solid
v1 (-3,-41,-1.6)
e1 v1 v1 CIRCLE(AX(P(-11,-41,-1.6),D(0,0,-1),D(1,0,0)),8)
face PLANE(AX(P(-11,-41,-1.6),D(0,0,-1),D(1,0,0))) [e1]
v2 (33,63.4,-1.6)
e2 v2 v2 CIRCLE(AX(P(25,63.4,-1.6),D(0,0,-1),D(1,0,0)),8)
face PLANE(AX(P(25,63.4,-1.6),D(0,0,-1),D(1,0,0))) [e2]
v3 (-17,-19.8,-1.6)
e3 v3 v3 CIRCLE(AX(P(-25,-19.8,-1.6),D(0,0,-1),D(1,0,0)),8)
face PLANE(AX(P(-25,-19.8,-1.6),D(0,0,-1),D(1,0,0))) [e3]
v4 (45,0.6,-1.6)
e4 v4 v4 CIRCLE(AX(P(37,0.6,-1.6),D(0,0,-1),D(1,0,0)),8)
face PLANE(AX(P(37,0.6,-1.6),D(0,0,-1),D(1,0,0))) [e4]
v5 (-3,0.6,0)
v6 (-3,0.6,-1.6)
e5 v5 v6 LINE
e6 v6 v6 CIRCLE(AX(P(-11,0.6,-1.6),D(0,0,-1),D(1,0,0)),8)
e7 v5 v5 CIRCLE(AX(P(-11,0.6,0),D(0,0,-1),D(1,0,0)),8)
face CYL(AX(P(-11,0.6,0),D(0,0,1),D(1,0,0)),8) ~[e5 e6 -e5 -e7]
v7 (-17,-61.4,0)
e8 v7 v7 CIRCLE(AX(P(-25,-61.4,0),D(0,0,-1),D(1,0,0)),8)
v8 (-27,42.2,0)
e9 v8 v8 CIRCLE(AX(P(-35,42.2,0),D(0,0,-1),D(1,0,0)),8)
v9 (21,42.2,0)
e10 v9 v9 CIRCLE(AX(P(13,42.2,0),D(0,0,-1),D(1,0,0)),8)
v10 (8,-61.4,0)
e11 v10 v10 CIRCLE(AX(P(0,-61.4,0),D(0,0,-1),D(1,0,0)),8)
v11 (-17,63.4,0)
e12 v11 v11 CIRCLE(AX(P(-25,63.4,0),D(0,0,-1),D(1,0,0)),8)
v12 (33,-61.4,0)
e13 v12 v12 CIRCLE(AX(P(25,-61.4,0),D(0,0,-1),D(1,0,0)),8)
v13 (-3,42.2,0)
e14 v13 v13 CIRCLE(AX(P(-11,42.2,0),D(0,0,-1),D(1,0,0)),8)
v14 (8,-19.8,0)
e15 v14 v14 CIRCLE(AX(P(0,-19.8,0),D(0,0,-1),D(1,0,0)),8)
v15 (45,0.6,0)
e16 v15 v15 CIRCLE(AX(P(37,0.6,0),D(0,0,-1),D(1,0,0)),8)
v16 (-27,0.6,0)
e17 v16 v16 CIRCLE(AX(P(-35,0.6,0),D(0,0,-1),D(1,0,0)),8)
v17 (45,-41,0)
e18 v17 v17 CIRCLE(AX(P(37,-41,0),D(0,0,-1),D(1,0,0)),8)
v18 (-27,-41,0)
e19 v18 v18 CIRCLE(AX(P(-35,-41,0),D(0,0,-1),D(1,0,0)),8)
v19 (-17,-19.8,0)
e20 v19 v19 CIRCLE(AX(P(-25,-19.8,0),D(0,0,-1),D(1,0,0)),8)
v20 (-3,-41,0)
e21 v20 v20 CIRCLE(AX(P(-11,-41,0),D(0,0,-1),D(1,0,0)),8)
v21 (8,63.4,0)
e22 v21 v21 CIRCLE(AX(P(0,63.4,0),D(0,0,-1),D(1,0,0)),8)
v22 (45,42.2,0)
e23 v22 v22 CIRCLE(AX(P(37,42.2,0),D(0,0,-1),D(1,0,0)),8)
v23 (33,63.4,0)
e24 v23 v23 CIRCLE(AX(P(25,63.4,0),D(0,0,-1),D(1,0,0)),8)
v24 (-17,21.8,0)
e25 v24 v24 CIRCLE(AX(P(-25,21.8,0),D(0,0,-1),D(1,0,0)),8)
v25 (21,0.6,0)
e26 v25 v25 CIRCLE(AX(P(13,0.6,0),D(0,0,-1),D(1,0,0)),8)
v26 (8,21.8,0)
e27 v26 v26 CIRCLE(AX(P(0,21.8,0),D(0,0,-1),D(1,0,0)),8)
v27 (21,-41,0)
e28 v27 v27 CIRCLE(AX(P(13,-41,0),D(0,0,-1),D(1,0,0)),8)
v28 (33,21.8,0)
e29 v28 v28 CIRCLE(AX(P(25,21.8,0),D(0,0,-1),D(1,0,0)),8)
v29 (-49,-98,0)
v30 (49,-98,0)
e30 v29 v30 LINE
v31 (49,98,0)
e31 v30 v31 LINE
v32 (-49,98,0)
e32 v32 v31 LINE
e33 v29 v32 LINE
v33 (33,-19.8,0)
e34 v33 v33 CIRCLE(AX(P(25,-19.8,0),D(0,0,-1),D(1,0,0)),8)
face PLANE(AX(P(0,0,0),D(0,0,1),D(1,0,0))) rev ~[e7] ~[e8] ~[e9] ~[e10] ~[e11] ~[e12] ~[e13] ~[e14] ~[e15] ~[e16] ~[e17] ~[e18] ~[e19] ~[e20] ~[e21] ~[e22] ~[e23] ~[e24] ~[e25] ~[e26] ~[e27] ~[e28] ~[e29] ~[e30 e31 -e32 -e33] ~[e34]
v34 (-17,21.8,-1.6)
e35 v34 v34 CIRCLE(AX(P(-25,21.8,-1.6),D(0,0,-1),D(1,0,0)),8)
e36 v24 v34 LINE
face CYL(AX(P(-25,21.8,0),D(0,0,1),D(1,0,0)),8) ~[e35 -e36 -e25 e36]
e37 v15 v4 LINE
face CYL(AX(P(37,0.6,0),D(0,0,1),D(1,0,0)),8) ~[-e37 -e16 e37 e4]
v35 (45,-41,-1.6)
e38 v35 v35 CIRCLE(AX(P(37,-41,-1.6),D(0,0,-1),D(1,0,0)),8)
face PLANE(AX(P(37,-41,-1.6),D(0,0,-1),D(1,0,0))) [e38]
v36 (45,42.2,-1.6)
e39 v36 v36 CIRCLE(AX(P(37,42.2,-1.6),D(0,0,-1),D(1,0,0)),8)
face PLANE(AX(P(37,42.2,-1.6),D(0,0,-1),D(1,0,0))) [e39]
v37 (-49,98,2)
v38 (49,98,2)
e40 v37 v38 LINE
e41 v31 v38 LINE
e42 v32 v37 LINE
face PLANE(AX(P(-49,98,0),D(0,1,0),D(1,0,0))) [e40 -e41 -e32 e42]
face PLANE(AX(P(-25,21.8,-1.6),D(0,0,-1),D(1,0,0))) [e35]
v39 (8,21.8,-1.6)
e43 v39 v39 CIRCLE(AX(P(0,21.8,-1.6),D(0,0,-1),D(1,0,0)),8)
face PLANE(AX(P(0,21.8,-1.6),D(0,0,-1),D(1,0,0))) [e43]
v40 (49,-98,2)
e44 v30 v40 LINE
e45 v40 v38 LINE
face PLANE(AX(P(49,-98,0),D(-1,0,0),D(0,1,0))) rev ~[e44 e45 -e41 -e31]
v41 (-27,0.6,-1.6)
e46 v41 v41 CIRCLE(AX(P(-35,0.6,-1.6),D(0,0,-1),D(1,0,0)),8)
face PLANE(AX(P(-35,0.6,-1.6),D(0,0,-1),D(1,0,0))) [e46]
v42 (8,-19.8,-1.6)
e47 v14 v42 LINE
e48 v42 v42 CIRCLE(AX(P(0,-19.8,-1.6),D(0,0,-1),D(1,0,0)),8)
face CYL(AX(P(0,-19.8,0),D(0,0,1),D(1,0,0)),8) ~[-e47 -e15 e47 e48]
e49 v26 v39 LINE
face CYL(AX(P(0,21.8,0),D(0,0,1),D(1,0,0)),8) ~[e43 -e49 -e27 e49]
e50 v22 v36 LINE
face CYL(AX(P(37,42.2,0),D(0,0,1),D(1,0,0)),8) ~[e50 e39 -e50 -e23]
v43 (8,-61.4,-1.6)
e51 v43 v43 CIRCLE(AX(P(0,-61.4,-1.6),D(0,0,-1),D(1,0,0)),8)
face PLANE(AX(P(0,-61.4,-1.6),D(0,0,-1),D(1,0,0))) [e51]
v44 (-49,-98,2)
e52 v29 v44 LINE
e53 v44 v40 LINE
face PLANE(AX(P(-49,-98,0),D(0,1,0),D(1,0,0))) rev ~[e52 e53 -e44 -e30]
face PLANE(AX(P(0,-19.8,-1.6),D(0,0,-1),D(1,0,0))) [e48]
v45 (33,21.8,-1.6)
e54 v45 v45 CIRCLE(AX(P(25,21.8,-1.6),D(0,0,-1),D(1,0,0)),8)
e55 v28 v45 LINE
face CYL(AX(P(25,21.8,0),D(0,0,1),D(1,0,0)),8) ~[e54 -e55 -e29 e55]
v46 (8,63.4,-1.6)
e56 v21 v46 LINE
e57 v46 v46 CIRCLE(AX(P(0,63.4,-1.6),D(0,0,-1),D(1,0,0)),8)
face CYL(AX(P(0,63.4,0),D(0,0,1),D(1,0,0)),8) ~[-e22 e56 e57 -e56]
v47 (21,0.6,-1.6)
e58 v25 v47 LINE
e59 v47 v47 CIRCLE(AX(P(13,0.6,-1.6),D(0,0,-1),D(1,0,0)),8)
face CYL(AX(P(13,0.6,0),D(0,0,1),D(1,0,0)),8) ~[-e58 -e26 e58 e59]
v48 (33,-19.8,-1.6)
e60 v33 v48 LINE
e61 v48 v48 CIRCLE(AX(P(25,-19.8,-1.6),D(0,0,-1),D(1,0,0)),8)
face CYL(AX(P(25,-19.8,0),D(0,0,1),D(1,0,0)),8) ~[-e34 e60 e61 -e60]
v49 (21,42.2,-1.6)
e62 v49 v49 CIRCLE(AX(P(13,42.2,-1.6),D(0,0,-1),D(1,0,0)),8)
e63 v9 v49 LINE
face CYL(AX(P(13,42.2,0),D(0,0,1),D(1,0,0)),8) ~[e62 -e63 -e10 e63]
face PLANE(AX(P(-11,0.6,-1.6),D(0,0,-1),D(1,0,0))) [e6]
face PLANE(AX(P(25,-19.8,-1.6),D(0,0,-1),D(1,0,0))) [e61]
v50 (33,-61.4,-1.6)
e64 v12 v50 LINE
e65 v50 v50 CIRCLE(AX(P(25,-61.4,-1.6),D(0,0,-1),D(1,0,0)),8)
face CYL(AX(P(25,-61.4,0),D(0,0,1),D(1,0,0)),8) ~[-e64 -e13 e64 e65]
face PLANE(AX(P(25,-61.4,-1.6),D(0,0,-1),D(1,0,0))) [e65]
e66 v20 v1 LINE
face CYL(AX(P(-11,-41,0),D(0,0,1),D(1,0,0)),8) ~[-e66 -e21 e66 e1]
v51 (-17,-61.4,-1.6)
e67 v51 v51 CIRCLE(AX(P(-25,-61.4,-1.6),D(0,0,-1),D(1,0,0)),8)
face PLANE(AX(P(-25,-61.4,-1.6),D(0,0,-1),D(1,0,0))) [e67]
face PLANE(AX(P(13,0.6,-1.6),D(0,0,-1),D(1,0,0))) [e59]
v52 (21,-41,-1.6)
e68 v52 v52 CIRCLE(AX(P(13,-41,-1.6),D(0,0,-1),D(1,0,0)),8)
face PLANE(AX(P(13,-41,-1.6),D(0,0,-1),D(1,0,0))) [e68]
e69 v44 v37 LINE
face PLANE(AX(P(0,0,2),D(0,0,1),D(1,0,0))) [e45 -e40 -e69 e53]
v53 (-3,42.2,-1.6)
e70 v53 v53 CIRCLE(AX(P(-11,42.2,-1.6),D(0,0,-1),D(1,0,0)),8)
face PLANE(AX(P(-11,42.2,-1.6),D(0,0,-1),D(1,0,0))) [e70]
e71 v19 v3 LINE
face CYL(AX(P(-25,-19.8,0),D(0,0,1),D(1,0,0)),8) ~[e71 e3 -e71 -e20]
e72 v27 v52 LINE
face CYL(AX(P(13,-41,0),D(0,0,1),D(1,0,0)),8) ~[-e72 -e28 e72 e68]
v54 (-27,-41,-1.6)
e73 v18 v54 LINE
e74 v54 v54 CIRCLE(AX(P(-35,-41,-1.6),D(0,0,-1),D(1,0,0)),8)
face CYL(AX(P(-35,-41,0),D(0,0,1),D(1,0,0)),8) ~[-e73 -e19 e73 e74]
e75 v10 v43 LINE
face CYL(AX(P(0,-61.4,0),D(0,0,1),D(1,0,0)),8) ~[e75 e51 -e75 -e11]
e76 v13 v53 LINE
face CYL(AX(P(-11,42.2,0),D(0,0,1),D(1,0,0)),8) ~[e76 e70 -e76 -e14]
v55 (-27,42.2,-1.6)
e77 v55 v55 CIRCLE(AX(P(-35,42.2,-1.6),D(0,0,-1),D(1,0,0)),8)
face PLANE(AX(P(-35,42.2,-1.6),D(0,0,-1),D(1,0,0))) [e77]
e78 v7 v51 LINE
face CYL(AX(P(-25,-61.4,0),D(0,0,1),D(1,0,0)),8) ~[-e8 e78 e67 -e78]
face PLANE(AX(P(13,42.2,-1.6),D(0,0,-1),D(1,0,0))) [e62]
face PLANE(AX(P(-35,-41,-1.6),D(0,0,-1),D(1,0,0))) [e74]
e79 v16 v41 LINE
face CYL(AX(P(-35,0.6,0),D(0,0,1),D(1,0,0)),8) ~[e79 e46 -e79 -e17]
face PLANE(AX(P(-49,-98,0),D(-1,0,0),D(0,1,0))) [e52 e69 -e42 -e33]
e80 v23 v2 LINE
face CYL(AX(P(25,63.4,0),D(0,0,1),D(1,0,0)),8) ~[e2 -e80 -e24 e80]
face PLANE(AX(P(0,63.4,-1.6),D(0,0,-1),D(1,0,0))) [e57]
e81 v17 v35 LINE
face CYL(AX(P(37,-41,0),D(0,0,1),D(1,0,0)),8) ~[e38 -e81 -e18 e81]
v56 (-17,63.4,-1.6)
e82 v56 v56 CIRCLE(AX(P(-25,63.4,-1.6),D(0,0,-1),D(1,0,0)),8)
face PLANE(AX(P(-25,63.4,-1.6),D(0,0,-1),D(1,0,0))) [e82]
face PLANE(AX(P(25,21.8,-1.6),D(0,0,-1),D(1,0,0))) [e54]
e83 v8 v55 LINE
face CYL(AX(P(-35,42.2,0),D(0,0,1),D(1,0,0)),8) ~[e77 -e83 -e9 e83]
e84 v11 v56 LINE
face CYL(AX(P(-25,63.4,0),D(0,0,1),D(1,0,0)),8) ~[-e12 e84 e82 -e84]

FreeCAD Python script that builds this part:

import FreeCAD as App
import Part
import Sketcher

doc = App.newDocument("Part")
body = doc.addObject("PartDesign::Body", "Body")

sketch1 = body.newObject("Sketcher::SketchObject", "Sketch")
sketch1.AttachmentSupport = (doc.getObject("XY_Plane"), [""])
sketch1.MapMode = "FlatFace"
sketch1.addGeometry([
    Part.LineSegment(App.Vector(-49, 98, 0), App.Vector(-49, -98, 0)),
    Part.LineSegment(App.Vector(-49, -98, 0), App.Vector(49, -98, 0)),
    Part.LineSegment(App.Vector(49, -98, 0), App.Vector(49, 98, 0)),
    Part.LineSegment(App.Vector(49, 98, 0), App.Vector(-49, 98, 0)),
], False)
sketch1.addConstraint([
    Sketcher.Constraint("Coincident", 0, 2, 1, 1),
    Sketcher.Constraint("Coincident", 1, 2, 2, 1),
    Sketcher.Constraint("Coincident", 2, 2, 3, 1),
    Sketcher.Constraint("Coincident", 3, 2, 0, 1),
    Sketcher.Constraint("Vertical", 0),
    Sketcher.Constraint("Horizontal", 1),
    Sketcher.Constraint("Vertical", 2),
    Sketcher.Constraint("Horizontal", 3),
    Sketcher.Constraint("Symmetric", 0, 2, 2, 2, -1, 1),
    Sketcher.Constraint("DistanceX", 1, 1, 1, 2, 98.0),
    Sketcher.Constraint("DistanceY", 0, 2, 0, 1, 196.0),
])
pad1 = body.newObject("PartDesign::Pad", "Pad")
pad1.Profile = sketch1
pad1.Length = 2

sketch2 = body.newObject("Sketcher::SketchObject", "Sketch001")
sketch2.AttachmentSupport = (doc.getObject("XY_Plane"), [""])
sketch2.MapMode = "FlatFace"
sketch2.addGeometry([
    Part.Circle(App.Vector(37, 42.2, 0), App.Vector(0, 0, 1), 8),
    Part.Circle(App.Vector(37, 0.6, 0), App.Vector(0, 0, 1), 8),
    Part.Circle(App.Vector(37, -41, 0), App.Vector(0, 0, 1), 8),
    Part.Circle(App.Vector(13, 42.2, 0), App.Vector(0, 0, 1), 8),
    Part.Circle(App.Vector(13, 0.6, 0), App.Vector(0, 0, 1), 8),
    Part.Circle(App.Vector(13, -41, 0), App.Vector(0, 0, 1), 8),
    Part.Circle(App.Vector(-11, 42.2, 0), App.Vector(0, 0, 1), 8),
    Part.Circle(App.Vector(-11, 0.6, 0), App.Vector(0, 0, 1), 8),
    Part.Circle(App.Vector(-11, -41, 0), App.Vector(0, 0, 1), 8),
    Part.Circle(App.Vector(-35, 42.2, 0), App.Vector(0, 0, 1), 8),
    Part.Circle(App.Vector(-35, 0.6, 0), App.Vector(0, 0, 1), 8),
    Part.Circle(App.Vector(-35, -41, 0), App.Vector(0, 0, 1), 8),
    Part.Circle(App.Vector(-25, 63.4, 0), App.Vector(0, 0, 1), 8),
    Part.Circle(App.Vector(-25, 21.8, 0), App.Vector(0, 0, 1), 8),
    Part.Circle(App.Vector(-25, -19.8, 0), App.Vector(0, 0, 1), 8),
    Part.Circle(App.Vector(0, 63.4, 0), App.Vector(0, 0, 1), 8),
    Part.Circle(App.Vector(0, 21.8, 0), App.Vector(0, 0, 1), 8),
    Part.Circle(App.Vector(0, -19.8, 0), App.Vector(0, 0, 1), 8),
    Part.Circle(App.Vector(25, 63.4, 0), App.Vector(0, 0, 1), 8),
    Part.Circle(App.Vector(25, 21.8, 0), App.Vector(0, 0, 1), 8),
    Part.Circle(App.Vector(25, -19.8, 0), App.Vector(0, 0, 1), 8),
    Part.Circle(App.Vector(-25, -61.4, 0), App.Vector(0, 0, 1), 8),
    Part.Circle(App.Vector(0, -61.4, 0), App.Vector(0, 0, 1), 8),
    Part.Circle(App.Vector(25, -61.4, 0), App.Vector(0, 0, 1), 8),
], False)
sketch2.addConstraint([
    Sketcher.Constraint("Equal", 0, 1),
    Sketcher.Constraint("Equal", 1, 2),
    Sketcher.Constraint("Equal", 2, 3),
    Sketcher.Constraint("Equal", 3, 4),
    Sketcher.Constraint("Equal", 4, 5),
    Sketcher.Constraint("Equal", 5, 6),
    Sketcher.Constraint("Equal", 6, 7),
    Sketcher.Constraint("Equal", 7, 8),
    Sketcher.Constraint("Equal", 8, 9),
    Sketcher.Constraint("Equal", 9, 10),
    Sketcher.Constraint("Equal", 10, 11),
    Sketcher.Constraint("Equal", 11, 12),
    Sketcher.Constraint("Equal", 12, 13),
    Sketcher.Constraint("Equal", 13, 14),
    Sketcher.Constraint("Equal", 14, 15),
    Sketcher.Constraint("Equal", 15, 16),
    Sketcher.Constraint("Equal", 16, 17),
    Sketcher.Constraint("Equal", 17, 18),
    Sketcher.Constraint("Equal", 18, 19),
    Sketcher.Constraint("Equal", 19, 20),
    Sketcher.Constraint("Equal", 20, 21),
    Sketcher.Constraint("Equal", 21, 22),
    Sketcher.Constraint("Equal", 22, 23),
    Sketcher.Constraint("Symmetric", 12, 3, 18, 3, -2),
    Sketcher.Constraint("Symmetric", 13, 3, 19, 3, -2),
    Sketcher.Constraint("Symmetric", 14, 3, 20, 3, -2),
    Sketcher.Constraint("Symmetric", 21, 3, 23, 3, -2),
    Sketcher.Constraint("PointOnObject", 15, 3, -2),
    Sketcher.Constraint("PointOnObject", 16, 3, -2),
    Sketcher.Constraint("PointOnObject", 17, 3, -2),
    Sketcher.Constraint("PointOnObject", 22, 3, -2),
    Sketcher.Constraint("Horizontal", 0, 3, 3, 3),
    Sketcher.Constraint("Horizontal", 1, 3, 4, 3),
    Sketcher.Constraint("Horizontal", 2, 3, 5, 3),
    Sketcher.Constraint("Horizontal", 3, 3, 6, 3),
    Sketcher.Constraint("Horizontal", 4, 3, 7, 3),
    Sketcher.Constraint("Horizontal", 5, 3, 8, 3),
    Sketcher.Constraint("Horizontal", 6, 3, 9, 3),
    Sketcher.Constraint("Horizontal", 7, 3, 10, 3),
    Sketcher.Constraint("Horizontal", 8, 3, 11, 3),
    Sketcher.Constraint("Horizontal", 12, 3, 15, 3),
    Sketcher.Constraint("Horizontal", 13, 3, 16, 3),
    Sketcher.Constraint("Horizontal", 14, 3, 17, 3),
    Sketcher.Constraint("Horizontal", 21, 3, 22, 3),
    Sketcher.Constraint("Vertical", 0, 3, 1, 3),
    Sketcher.Constraint("Vertical", 1, 3, 2, 3),
    Sketcher.Constraint("Vertical", 3, 3, 4, 3),
    Sketcher.Constraint("Vertical", 4, 3, 5, 3),
    Sketcher.Constraint("Vertical", 6, 3, 7, 3),
    Sketcher.Constraint("Vertical", 7, 3, 8, 3),
    Sketcher.Constraint("Vertical", 9, 3, 10, 3),
    Sketcher.Constraint("Vertical", 10, 3, 11, 3),
    Sketcher.Constraint("Vertical", 12, 3, 13, 3),
    Sketcher.Constraint("Vertical", 13, 3, 14, 3),
    Sketcher.Constraint("Vertical", 14, 3, 21, 3),
    Sketcher.Constraint("Diameter", 0, 16.0),
    Sketcher.Constraint("DistanceX", -1, 1, 0, 3, 37.0),
    Sketcher.Constraint("DistanceY", 2, 3, -1, 1, 41.0),
    Sketcher.Constraint("DistanceX", -1, 1, 3, 3, 13.0),
    Sketcher.Constraint("DistanceX", 6, 3, -1, 1, 11.0),
    Sketcher.Constraint("DistanceX", 9, 3, -1, 1, 35.0),
    Sketcher.Constraint("DistanceX", 12, 3, -1, 1, 25.0),
    Sketcher.Constraint("DistanceY", -1, 1, 0, 3, 42.2),
    Sketcher.Constraint("DistanceY", -1, 1, 1, 3, 0.6),
    Sketcher.Constraint("DistanceY", -1, 1, 12, 3, 63.4),
    Sketcher.Constraint("DistanceY", -1, 1, 13, 3, 21.8),
    Sketcher.Constraint("DistanceY", 14, 3, -1, 1, 19.8),
    Sketcher.Constraint("DistanceY", 21, 3, -1, 1, 61.4),
])
pad2 = body.newObject("PartDesign::Pad", "Pad001")
pad2.Profile = sketch2
pad2.Length = 1.6
pad2.Reversed = True

doc.recompute()
